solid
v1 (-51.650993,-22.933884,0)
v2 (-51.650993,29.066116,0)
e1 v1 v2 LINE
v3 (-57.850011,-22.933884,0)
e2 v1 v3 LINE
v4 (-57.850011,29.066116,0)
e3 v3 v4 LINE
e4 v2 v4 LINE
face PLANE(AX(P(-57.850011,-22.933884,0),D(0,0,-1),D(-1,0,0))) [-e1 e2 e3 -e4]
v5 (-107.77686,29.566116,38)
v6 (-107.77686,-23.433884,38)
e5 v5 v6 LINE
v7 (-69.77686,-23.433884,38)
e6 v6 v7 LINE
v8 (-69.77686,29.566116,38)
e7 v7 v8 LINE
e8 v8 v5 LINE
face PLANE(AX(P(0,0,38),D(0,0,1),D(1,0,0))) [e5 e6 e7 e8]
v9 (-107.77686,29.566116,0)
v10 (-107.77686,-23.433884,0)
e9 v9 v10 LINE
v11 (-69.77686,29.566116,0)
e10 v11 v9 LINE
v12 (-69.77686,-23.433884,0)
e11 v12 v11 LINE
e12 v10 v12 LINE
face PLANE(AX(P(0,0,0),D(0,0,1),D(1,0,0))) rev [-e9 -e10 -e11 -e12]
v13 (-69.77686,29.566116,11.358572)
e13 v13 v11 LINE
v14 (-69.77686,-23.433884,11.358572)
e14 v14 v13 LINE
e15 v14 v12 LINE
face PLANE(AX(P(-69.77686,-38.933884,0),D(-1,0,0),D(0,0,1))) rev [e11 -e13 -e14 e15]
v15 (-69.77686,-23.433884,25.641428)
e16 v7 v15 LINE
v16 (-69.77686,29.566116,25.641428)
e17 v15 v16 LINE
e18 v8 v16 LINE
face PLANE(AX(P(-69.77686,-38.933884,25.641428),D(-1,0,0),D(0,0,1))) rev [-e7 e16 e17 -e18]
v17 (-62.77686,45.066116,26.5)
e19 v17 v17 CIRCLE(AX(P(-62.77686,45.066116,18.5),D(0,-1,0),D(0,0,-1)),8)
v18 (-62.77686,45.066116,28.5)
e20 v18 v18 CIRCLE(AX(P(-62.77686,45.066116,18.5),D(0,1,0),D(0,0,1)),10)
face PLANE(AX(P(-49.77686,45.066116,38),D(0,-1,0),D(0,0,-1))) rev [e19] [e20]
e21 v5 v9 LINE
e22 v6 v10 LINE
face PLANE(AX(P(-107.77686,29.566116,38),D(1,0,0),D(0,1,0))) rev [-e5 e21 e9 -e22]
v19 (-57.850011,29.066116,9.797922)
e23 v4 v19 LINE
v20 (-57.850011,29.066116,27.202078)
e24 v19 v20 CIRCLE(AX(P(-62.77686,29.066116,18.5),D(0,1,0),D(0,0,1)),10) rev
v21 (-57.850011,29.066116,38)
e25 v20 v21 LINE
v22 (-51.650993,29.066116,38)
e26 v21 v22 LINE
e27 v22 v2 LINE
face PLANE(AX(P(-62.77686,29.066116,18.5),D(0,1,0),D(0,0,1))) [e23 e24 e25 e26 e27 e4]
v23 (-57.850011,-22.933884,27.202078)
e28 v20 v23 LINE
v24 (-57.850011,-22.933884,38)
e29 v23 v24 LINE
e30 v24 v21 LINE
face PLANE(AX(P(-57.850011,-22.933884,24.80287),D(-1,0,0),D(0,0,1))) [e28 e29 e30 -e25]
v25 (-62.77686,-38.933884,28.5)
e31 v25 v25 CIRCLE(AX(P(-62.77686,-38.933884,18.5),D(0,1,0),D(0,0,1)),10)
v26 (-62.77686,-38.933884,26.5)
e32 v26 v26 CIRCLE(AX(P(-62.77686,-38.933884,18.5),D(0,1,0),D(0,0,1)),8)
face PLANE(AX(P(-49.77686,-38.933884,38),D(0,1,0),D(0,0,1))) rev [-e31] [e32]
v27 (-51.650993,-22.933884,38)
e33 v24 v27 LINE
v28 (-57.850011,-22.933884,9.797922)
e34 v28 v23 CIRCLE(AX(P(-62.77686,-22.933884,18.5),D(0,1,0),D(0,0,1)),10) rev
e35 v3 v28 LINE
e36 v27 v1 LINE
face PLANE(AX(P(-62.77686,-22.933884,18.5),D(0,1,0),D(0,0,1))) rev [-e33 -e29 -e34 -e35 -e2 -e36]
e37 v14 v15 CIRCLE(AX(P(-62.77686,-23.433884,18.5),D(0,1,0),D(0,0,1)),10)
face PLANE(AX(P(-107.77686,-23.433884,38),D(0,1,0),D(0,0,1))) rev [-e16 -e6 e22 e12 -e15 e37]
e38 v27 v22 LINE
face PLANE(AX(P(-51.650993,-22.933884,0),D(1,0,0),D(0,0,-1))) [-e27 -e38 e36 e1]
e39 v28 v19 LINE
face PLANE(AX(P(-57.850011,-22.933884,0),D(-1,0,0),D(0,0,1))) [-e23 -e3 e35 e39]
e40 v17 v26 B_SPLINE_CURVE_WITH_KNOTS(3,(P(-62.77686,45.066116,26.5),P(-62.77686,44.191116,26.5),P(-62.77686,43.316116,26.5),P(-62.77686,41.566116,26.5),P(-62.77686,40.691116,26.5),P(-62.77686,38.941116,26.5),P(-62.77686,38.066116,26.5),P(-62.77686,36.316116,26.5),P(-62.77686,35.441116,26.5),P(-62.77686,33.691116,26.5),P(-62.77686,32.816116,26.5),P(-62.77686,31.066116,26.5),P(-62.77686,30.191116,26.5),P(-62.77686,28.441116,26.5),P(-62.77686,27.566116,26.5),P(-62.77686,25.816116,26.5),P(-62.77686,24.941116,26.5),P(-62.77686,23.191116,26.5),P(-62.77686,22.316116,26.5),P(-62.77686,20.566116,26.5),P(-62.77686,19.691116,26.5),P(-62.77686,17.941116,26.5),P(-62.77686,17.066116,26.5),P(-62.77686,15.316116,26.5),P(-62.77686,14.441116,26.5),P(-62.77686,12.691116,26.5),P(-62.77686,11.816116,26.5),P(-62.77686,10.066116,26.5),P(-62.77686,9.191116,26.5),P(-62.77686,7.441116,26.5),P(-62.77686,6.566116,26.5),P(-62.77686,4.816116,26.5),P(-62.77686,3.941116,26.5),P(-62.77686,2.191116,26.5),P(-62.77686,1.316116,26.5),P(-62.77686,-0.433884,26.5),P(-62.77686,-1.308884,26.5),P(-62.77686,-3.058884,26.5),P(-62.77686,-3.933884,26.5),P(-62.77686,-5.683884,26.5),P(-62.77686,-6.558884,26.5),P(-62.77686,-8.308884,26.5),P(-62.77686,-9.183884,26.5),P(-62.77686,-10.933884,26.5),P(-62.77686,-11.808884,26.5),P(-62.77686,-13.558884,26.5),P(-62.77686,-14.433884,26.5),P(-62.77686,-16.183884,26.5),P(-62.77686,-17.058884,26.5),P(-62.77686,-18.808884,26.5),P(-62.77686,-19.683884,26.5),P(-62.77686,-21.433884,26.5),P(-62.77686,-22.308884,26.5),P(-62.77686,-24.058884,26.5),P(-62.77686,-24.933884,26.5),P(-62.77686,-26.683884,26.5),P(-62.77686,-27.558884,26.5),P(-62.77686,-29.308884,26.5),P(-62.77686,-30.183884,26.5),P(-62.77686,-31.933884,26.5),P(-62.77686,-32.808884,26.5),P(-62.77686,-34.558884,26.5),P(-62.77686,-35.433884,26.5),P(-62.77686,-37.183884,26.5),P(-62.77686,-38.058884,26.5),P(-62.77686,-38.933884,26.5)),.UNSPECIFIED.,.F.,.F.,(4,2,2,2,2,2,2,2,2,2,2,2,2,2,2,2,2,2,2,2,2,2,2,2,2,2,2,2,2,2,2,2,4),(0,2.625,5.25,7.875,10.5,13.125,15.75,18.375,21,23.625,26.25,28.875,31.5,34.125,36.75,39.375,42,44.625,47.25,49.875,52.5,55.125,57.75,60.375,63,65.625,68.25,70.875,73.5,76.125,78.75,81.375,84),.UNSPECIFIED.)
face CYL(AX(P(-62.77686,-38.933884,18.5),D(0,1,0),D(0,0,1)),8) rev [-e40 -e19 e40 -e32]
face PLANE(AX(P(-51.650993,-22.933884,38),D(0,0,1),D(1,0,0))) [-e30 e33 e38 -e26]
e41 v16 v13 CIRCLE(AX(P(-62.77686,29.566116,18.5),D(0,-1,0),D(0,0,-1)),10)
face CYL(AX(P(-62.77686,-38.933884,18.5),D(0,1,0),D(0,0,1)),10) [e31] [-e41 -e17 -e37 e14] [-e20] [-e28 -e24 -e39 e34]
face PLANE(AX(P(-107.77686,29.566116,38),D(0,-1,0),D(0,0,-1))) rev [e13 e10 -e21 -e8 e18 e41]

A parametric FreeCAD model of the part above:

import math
import FreeCAD as App
import Part
import Sketcher

V = App.Vector
Q = App.Units.Quantity


def add_polygon(sketch, points):
    """Adds a closed chain of lines whose ends are joined by coincident constraints."""
    first, n = sketch.GeometryCount, len(points)
    for a, b in zip(points, points[1:] + points[:1]):
        sketch.addGeometry(Part.LineSegment(App.Vector(*a, 0), App.Vector(*b, 0)), False)
    for i in range(n):
        sketch.addConstraint(Sketcher.Constraint("Coincident", first + i, 2, first + (i + 1) % n, 1))

doc = App.newDocument("Part")
body = doc.addObject("PartDesign::Body", "Body")

sketch1 = doc.addObject("Sketcher::SketchObject", "Sketch")
body.addObject(sketch1)
sketch1.AttachmentSupport = (doc.XY_Plane, [""])
sketch1.MapMode = "FlatFace"
add_polygon(sketch1, [(-70, 30), (-108, 30), (-108, -23), (-70, -23), (-70, -39), (-50, -39), (-50, 45), (-70, 45)])
sketch1.addConstraint(Sketcher.Constraint("Horizontal", 0))
sketch1.addConstraint(Sketcher.Constraint("Vertical", 1))
sketch1.addConstraint(Sketcher.Constraint("Horizontal", 2))
sketch1.addConstraint(Sketcher.Constraint("Vertical", 3))
sketch1.addConstraint(Sketcher.Constraint("Horizontal", 4))
sketch1.addConstraint(Sketcher.Constraint("Vertical", 5))
sketch1.addConstraint(Sketcher.Constraint("Horizontal", 6))
sketch1.addConstraint(Sketcher.Constraint("Vertical", 7))
sketch1.addConstraint(Sketcher.Constraint("Vertical", 3, 2, 6, 2))
sketch1.addConstraint(Sketcher.Constraint("Equal", 3, 7))
sketch1.addConstraint(Sketcher.Constraint("DistanceX", 0, 2, 0, 1, Q("38 mm")))
sketch1.addConstraint(Sketcher.Constraint("DistanceX", 4, 1, 4, 2, Q("20 mm")))
sketch1.addConstraint(Sketcher.Constraint("DistanceY", 1, 2, 1, 1, Q("53 mm")))
sketch1.addConstraint(Sketcher.Constraint("DistanceY", 5, 1, 5, 2, Q("84 mm")))
sketch1.addConstraint(Sketcher.Constraint("DistanceX", 0, 2, -1, 1, Q("107.77686 mm")))
sketch1.addConstraint(Sketcher.Constraint("DistanceY", -1, 1, 0, 2, Q("29.566116 mm")))
pad1 = doc.addObject("PartDesign::Pad", "Pad")
body.addObject(pad1)
pad1.Profile = sketch1
pad1.Length = 38

sketch2 = doc.addObject("Sketcher::SketchObject", "Sketch001")
body.addObject(sketch2)
sketch2.AttachmentSupport = (doc.XZ_Plane, [""])
sketch2.MapMode = "FlatFace"
sketch2.AttachmentOffset = App.Placement(V(0, 0, -45.066116), App.Rotation())
sketch2.addGeometry(Part.Circle(V(-63, 18, 0), V(0, 0, 1), 10), False)
sketch2.addConstraint(Sketcher.Constraint("Diameter", 0, Q("20 mm")))
sketch2.addConstraint(Sketcher.Constraint("DistanceY", -1, 1, 0, 3, Q("18.5 mm")))
sketch2.addConstraint(Sketcher.Constraint("DistanceX", 0, 3, -1, 1, Q("62.77686 mm")))
pad2 = doc.addObject("PartDesign::Pad", "Pad001")
body.addObject(pad2)
pad2.Profile = sketch2
pad2.Length = 84

sketch3 = doc.addObject("Sketcher::SketchObject", "Sketch002")
body.addObject(sketch3)
sketch3.AttachmentSupport = (doc.XZ_Plane, [""])
sketch3.MapMode = "FlatFace"
sketch3.AttachmentOffset = App.Placement(V(0, 0, -45.066116), App.Rotation())
sketch3.addGeometry(Part.Circle(V(-63, 18, 0), V(0, 0, 1), 8), False)
sketch3.addConstraint(Sketcher.Constraint("Diameter", 0, Q("16 mm")))
sketch3.addConstraint(Sketcher.Constraint("DistanceY", -1, 1, 0, 3, Q("18.5 mm")))
sketch3.addConstraint(Sketcher.Constraint("DistanceX", 0, 3, -1, 1, Q("62.77686 mm")))
pocket1 = doc.addObject("PartDesign::Pocket", "Pocket")
body.addObject(pocket1)
pocket1.Profile = sketch3
pocket1.Type = "ThroughAll"
pocket1.Midplane = True

sketch4 = doc.addObject("Sketcher::SketchObject", "Sketch003")
body.addObject(sketch4)
sketch4.AttachmentSupport = (doc.XZ_Plane, [""])
sketch4.MapMode = "FlatFace"
sketch4.AttachmentOffset = App.Placement(V(0, 0, -45.066116), App.Rotation())
sketch4.addGeometry(Part.LineSegment(V(-70, 0, 0), V(-70, 11, 0)), False)
sketch4.addGeometry(Part.ArcOfCircle(Part.Circle(V(-63, 18, 0), V(0, 0, 1), 10), math.radians(-134), math.radians(134)), False)
sketch4.addGeometry(Part.LineSegment(V(-70, 26, 0), V(-70, 38, 0)), False)
sketch4.addGeometry(Part.LineSegment(V(-70, 38, 0), V(-50, 38, 0)), False)
sketch4.addGeometry(Part.LineSegment(V(-50, 38, 0), V(-50, 0, 0)), False)
sketch4.addGeometry(Part.LineSegment(V(-50, 0, 0), V(-70, 0, 0)), False)
sketch4.addConstraint(Sketcher.Constraint("Coincident", 0, 2, 1, 1))
sketch4.addConstraint(Sketcher.Constraint("Coincident", 1, 2, 2, 1))
sketch4.addConstraint(Sketcher.Constraint("Coincident", 2, 2, 3, 1))
sketch4.addConstraint(Sketcher.Constraint("Coincident", 3, 2, 4, 1))
sketch4.addConstraint(Sketcher.Constraint("Coincident", 4, 2, 5, 1))
sketch4.addConstraint(Sketcher.Constraint("Coincident", 5, 2, 0, 1))
sketch4.addConstraint(Sketcher.Constraint("Vertical", 0))
sketch4.addConstraint(Sketcher.Constraint("Vertical", 2))
sketch4.addConstraint(Sketcher.Constraint("Horizontal", 3))
sketch4.addConstraint(Sketcher.Constraint("Vertical", 4))
sketch4.addConstraint(Sketcher.Constraint("Horizontal", 5))
sketch4.addConstraint(Sketcher.Constraint("PointOnObject", 4, 2, -1))
sketch4.addConstraint(Sketcher.Constraint("Vertical", 0, 2, 1, 2))
sketch4.addConstraint(Sketcher.Constraint("Radius", 1, Q("10 mm")))
sketch4.addConstraint(Sketcher.Constraint("DistanceX", 3, 1, 3, 2, Q("20 mm")))
sketch4.addConstraint(Sketcher.Constraint("DistanceY", 4, 2, 4, 1, Q("38 mm")))
sketch4.addConstraint(Sketcher.Constraint("DistanceX", 0, 2, 1, 3, Q("7 mm")))
sketch4.addConstraint(Sketcher.Constraint("DistanceY", -1, 1, 1, 3, Q("18.5 mm")))
sketch4.addConstraint(Sketcher.Constraint("DistanceX", 1, 3, -1, 1, Q("62.77686 mm")))
pocket2 = doc.addObject("PartDesign::Pocket", "Pocket001")
body.addObject(pocket2)
pocket2.Profile = sketch4
pocket2.Type = "ThroughAll"
pocket2.Midplane = True

sketch5 = doc.addObject("Sketcher::SketchObject", "Sketch004")
body.addObject(sketch5)
sketch5.AttachmentSupport = (doc.XZ_Plane, [""])
sketch5.MapMode = "FlatFace"
sketch5.AttachmentOffset = App.Placement(V(0, 0, -29.066116), App.Rotation())
sketch5.addGeometry(Part.LineSegment(V(-52, 0, 0), V(-58, 0, 0)), False)
sketch5.addGeometry(Part.LineSegment(V(-58, 0, 0), V(-58, 12, 0)), False)
sketch5.addGeometry(Part.ArcOfCircle(Part.Circle(V(-63, 18, 0), V(0, 0, 1), 8), math.radians(-52), math.radians(52)), False)
sketch5.addGeometry(Part.LineSegment(V(-58, 25, 0), V(-58, 38, 0)), False)
sketch5.addGeometry(Part.LineSegment(V(-58, 38, 0), V(-52, 38, 0)), False)
sketch5.addGeometry(Part.LineSegment(V(-52, 38, 0), V(-52, 0, 0)), False)
sketch5.addConstraint(Sketcher.Constraint("Coincident", 0, 2, 1, 1))
sketch5.addConstraint(Sketcher.Constraint("Coincident", 1, 2, 2, 1))
sketch5.addConstraint(Sketcher.Constraint("Coincident", 2, 2, 3, 1))
sketch5.addConstraint(Sketcher.Constraint("Coincident", 3, 2, 4, 1))
sketch5.addConstraint(Sketcher.Constraint("Coincident", 4, 2, 5, 1))
sketch5.addConstraint(Sketcher.Constraint("Coincident", 5, 2, 0, 1))
sketch5.addConstraint(Sketcher.Constraint("Horizontal", 0))
sketch5.addConstraint(Sketcher.Constraint("Vertical", 1))
sketch5.addConstraint(Sketcher.Constraint("Vertical", 3))
sketch5.addConstraint(Sketcher.Constraint("Horizontal", 4))
sketch5.addConstraint(Sketcher.Constraint("Vertical", 5))
sketch5.addConstraint(Sketcher.Constraint("PointOnObject", 0, 2, -1))
sketch5.addConstraint(Sketcher.Constraint("Vertical", 1, 2, 2, 2))
sketch5.addConstraint(Sketcher.Constraint("Radius", 2, Q("8 mm")))
sketch5.addConstraint(Sketcher.Constraint("DistanceY", 5, 2, 5, 1, Q("38 mm")))
sketch5.addConstraint(Sketcher.Constraint("DistanceY", -1, 1, 2, 3, Q("18.5 mm")))
sketch5.addConstraint(Sketcher.Constraint("DistanceX", 0, 2, 0, 1, Q("6.199019 mm")))
sketch5.addConstraint(Sketcher.Constraint("DistanceY", 1, 1, 1, 2, Q("12.19713 mm")))
sketch5.addConstraint(Sketcher.Constraint("DistanceX", 2, 3, -1, 1, Q("62.77686 mm")))
pad3 = doc.addObject("PartDesign::Pad", "Pad002")
body.addObject(pad3)
pad3.Profile = sketch5
pad3.Length = 52

doc.recompute()
